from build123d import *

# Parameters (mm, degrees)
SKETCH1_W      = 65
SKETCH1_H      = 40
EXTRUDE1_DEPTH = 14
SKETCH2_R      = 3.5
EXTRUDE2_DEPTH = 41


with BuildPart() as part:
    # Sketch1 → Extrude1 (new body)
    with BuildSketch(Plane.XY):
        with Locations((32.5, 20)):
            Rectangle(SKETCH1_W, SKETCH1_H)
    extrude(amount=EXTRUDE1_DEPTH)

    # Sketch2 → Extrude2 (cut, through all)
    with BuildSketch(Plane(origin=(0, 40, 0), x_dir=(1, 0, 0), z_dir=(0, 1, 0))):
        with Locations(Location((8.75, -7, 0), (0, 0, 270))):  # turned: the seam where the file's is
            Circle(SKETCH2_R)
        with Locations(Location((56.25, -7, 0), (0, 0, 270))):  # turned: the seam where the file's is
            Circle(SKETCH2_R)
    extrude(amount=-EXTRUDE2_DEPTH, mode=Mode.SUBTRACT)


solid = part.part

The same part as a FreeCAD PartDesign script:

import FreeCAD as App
import Part
import Sketcher

V = App.Vector

doc = App.newDocument("Part")
params = doc.addObject("Spreadsheet::Sheet", "Params")
for row, (alias, value) in enumerate([
    ("sketch1_width", "65 mm"),
    ("sketch1_height", "40 mm"),
    ("pad1_length", "14 mm"),
    ("sketch2_diameter", "7 mm"),
], start=1):
    params.set(f"A{row}", alias)
    params.set(f"B{row}", "=" + value)
    params.setAlias(f"B{row}", alias)

body = doc.addObject("PartDesign::Body", "Body")

# Sketch on XY plane
sketch1 = doc.addObject("Sketcher::SketchObject", "Sketch")
body.addObject(sketch1)
sketch1.AttachmentSupport = (doc.XY_Plane, [""])
sketch1.MapMode = "FlatFace"
sketch1.addGeometry(Part.LineSegment(V(0, 40, 0), V(0, 0, 0)), False)
sketch1.addGeometry(Part.LineSegment(V(0, 0, 0), V(65, 0, 0)), False)
sketch1.addGeometry(Part.LineSegment(V(65, 0, 0), V(65, 40, 0)), False)
sketch1.addGeometry(Part.LineSegment(V(65, 40, 0), V(0, 40, 0)), False)
sketch1.addConstraint(Sketcher.Constraint("Coincident", 0, 2, 1, 1))
sketch1.addConstraint(Sketcher.Constraint("Coincident", 1, 2, 2, 1))
sketch1.addConstraint(Sketcher.Constraint("Coincident", 2, 2, 3, 1))
sketch1.addConstraint(Sketcher.Constraint("Coincident", 3, 2, 0, 1))
sketch1.addConstraint(Sketcher.Constraint("Vertical", 0))
sketch1.addConstraint(Sketcher.Constraint("Horizontal", 1))
sketch1.addConstraint(Sketcher.Constraint("Vertical", 2))
sketch1.addConstraint(Sketcher.Constraint("Horizontal", 3))
sketch1.addConstraint(Sketcher.Constraint("Coincident", 0, 2, -1, 1))
sketch1.addConstraint(Sketcher.Constraint("DistanceX", 1, 1, 1, 2, 65.0))
sketch1.addConstraint(Sketcher.Constraint("DistanceY", 0, 2, 0, 1, 40.0))
sketch1.setExpression("Constraints[9]", "Params.sketch1_width")
sketch1.setExpression("Constraints[10]", "Params.sketch1_height")
pad1 = doc.addObject("PartDesign::Pad", "Pad")
body.addObject(pad1)
pad1.Profile = sketch1
pad1.setExpression("Length", "Params.pad1_length")

# Sketch on XZ plane
sketch2 = doc.addObject("Sketcher::SketchObject", "Sketch001")
body.addObject(sketch2)
sketch2.AttachmentSupport = (doc.XZ_Plane, [""])
sketch2.MapMode = "FlatFace"
sketch2.AttachmentOffset = App.Placement(V(0, 0, -40), App.Rotation())
sketch2.addGeometry(Part.Circle(V(8.75, 7, 0), V(0, 0, 1), 3.5), False)
sketch2.addGeometry(Part.Circle(V(56.25, 7, 0), V(0, 0, 1), 3.5), False)
sketch2.addConstraint(Sketcher.Constraint("Equal", 0, 1))
sketch2.addConstraint(Sketcher.Constraint("Horizontal", 0, 3, 1, 3))
sketch2.addConstraint(Sketcher.Constraint("Diameter", 0, 7.0))
sketch2.addConstraint(Sketcher.Constraint("DistanceY", -1, 1, 0, 3, 7.0))
sketch2.addConstraint(Sketcher.Constraint("DistanceX", 0, 3, 1, 3, 47.5))
sketch2.addConstraint(Sketcher.Constraint("DistanceX", -1, 1, 0, 3, 8.75))
sketch2.setExpression("Constraints[2]", "Params.sketch2_diameter")
pocket1 = doc.addObject("PartDesign::Pocket", "Pocket")
body.addObject(pocket1)
pocket1.Profile = sketch2
pocket1.Type = "ThroughAll"
pocket1.Reversed = True

doc.recompute()
